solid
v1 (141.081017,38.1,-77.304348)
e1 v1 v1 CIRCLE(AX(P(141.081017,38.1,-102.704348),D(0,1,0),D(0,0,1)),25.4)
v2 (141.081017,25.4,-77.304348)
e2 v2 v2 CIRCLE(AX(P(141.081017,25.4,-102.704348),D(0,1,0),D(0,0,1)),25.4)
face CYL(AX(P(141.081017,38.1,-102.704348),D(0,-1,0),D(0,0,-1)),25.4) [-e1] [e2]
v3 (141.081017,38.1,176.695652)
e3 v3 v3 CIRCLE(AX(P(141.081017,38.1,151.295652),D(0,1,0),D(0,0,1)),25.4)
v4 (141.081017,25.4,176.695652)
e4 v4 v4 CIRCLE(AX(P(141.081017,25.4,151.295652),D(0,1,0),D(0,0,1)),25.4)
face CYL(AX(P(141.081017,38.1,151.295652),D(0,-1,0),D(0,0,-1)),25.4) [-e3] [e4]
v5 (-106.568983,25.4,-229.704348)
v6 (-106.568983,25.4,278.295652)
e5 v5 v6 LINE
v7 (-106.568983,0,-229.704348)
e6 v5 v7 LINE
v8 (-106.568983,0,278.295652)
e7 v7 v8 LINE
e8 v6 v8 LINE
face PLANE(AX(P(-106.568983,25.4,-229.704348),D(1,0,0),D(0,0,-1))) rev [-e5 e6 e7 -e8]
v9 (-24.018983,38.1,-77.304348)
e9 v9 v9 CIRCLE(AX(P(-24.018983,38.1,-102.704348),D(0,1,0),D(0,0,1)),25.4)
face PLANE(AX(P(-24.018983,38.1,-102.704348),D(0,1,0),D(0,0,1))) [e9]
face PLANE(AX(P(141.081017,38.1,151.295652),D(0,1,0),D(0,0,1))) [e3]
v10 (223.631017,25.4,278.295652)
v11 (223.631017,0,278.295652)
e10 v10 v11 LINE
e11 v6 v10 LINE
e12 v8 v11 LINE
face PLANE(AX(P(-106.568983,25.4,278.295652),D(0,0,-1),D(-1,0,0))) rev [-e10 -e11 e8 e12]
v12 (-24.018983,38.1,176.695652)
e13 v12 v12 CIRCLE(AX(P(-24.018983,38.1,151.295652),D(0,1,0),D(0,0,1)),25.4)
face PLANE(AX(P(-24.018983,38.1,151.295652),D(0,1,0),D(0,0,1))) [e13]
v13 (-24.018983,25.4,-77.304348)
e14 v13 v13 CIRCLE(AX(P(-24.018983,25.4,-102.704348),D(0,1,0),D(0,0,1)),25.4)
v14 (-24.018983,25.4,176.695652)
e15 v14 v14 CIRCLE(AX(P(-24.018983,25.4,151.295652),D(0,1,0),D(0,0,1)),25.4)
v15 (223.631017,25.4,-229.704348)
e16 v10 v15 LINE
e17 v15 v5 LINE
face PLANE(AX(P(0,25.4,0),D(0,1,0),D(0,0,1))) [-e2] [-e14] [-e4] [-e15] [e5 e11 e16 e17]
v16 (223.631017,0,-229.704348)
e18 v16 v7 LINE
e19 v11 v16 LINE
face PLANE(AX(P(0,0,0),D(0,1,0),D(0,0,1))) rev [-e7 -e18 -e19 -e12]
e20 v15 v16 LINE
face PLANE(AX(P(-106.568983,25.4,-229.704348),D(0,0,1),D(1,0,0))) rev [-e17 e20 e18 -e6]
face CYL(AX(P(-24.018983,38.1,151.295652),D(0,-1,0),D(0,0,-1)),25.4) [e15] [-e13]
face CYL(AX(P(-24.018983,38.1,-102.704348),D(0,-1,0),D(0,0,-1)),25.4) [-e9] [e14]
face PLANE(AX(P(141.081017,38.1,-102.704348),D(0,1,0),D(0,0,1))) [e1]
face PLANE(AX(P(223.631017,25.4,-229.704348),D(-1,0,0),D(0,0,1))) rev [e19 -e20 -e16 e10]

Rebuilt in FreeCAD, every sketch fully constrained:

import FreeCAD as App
import Part
import Sketcher
Q = App.Units.Quantity


def add_polygon(sketch, points):
    """Adds a closed chain of lines whose ends are joined by coincident constraints."""
    first, n = sketch.GeometryCount, len(points)
    for a, b in zip(points, points[1:] + points[:1]):
        sketch.addGeometry(Part.LineSegment(App.Vector(*a, 0), App.Vector(*b, 0)), False)
    for i in range(n):
        sketch.addConstraint(Sketcher.Constraint("Coincident", first + i, 2, first + (i + 1) % n, 1))

doc = App.newDocument("Part")
body = doc.addObject("PartDesign::Body", "Body")

sketch1 = body.newObject("Sketcher::SketchObject", "Sketch")
sketch1.AttachmentSupport = (doc.getObject("XZ_Plane"), [""])
sketch1.MapMode = "FlatFace"
add_polygon(sketch1, [(-107, -230), (-107, 278), (224, 278), (224, -230)])
sketch1.addConstraint([
    Sketcher.Constraint("Vertical", 0),
    Sketcher.Constraint("Horizontal", 1),
    Sketcher.Constraint("Vertical", 2),
    Sketcher.Constraint("Horizontal", 3),
    Sketcher.Constraint("DistanceX", 1, 1, 1, 2, Q("13 in")),
    Sketcher.Constraint("DistanceY", 0, 1, 0, 2, Q("20 in")),
    Sketcher.Constraint("DistanceX", 0, 2, -1, 1, 106.568983),
    Sketcher.Constraint("DistanceY", -1, 1, 0, 2, 278.295652),
])
pad1 = body.newObject("PartDesign::Pad", "Pad")
pad1.Profile = sketch1
pad1.Length = Q("1 in")
pad1.Reversed = True

sketch2 = body.newObject("Sketcher::SketchObject", "Sketch001")
sketch2.AttachmentSupport = (doc.getObject("XZ_Plane"), [""])
sketch2.MapMode = "FlatFace"
sketch2.AttachmentOffset = App.Placement(App.Vector(0, 0, -1 * 25.4), App.Rotation())
sketch2.addGeometry([
    Part.Circle(App.Vector(-24, -103, 0), App.Vector(0, 0, 1), 25),
    Part.Circle(App.Vector(141, -103, 0), App.Vector(0, 0, 1), 25),
    Part.Circle(App.Vector(141, 151, 0), App.Vector(0, 0, 1), 25),
    Part.Circle(App.Vector(-24, 151, 0), App.Vector(0, 0, 1), 25),
], False)
sketch2.addConstraint([
    Sketcher.Constraint("Equal", 0, 1),
    Sketcher.Constraint("Equal", 1, 2),
    Sketcher.Constraint("Equal", 2, 3),
    Sketcher.Constraint("Horizontal", 0, 3, 1, 3),
    Sketcher.Constraint("Horizontal", 2, 3, 3, 3),
    Sketcher.Constraint("Vertical", 1, 3, 2, 3),
    Sketcher.Constraint("Vertical", 0, 3, 3, 3),
    Sketcher.Constraint("Diameter", 0, Q("2 in")),
    Sketcher.Constraint("DistanceY", 1, 3, 2, 3, Q("10 in")),
    Sketcher.Constraint("DistanceX", 0, 3, 1, 3, Q("6.5 in")),
    Sketcher.Constraint("DistanceX", 0, 3, -1, 1, 24.018983),
    Sketcher.Constraint("DistanceY", 0, 3, -1, 1, 102.704348),
])
pad2 = body.newObject("PartDesign::Pad", "Pad001")
pad2.Profile = sketch2
pad2.Length = Q("0.5 in")
pad2.Reversed = True

doc.recompute()
